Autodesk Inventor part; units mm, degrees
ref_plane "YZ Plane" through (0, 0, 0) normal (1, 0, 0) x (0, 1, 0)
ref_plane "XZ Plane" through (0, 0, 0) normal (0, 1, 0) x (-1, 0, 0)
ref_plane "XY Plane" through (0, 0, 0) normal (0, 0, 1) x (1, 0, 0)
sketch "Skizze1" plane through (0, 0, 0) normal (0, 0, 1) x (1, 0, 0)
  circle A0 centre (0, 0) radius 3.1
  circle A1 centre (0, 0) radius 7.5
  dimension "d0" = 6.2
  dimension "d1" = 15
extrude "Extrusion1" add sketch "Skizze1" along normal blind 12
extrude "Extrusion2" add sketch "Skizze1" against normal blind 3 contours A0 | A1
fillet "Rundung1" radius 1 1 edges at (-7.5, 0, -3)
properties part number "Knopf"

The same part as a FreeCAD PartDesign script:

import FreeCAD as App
import Part
import Sketcher

V = App.Vector


def edges_at(feature, points):
    """Names of the edges that pass closest to the given points."""
    edges = feature.Shape.Edges
    near = lambda p: min(range(len(edges)), key=lambda i: edges[i].distToShape(Part.Vertex(*p))[0])
    return sorted({f"Edge{near(p) + 1}" for p in points})

doc = App.newDocument("Part")
body = doc.addObject("PartDesign::Body", "Body")

sketch1 = doc.addObject("Sketcher::SketchObject", "Sketch")
body.addObject(sketch1)
sketch1.AttachmentSupport = (doc.XY_Plane, [""])
sketch1.MapMode = "FlatFace"
sketch1.addGeometry([
    Part.Circle(V(0, 0, 0), V(0, 0, 1), 7.5),
    Part.Circle(V(0, 0, 0), V(0, 0, 1), 3.1),
], False)
sketch1.addConstraint([
    Sketcher.Constraint("Coincident", 0, 3, -1, 1),
    Sketcher.Constraint("Coincident", 1, 3, -1, 1),
    Sketcher.Constraint("Diameter", 0, 15.0),
    Sketcher.Constraint("Diameter", 1, 6.2),
])
pad1 = doc.addObject("PartDesign::Pad", "Pad")
body.addObject(pad1)
pad1.Profile = sketch1
pad1.Length = 12

sketch2 = doc.addObject("Sketcher::SketchObject", "Sketch001")
body.addObject(sketch2)
sketch2.AttachmentSupport = (doc.XY_Plane, [""])
sketch2.MapMode = "FlatFace"
sketch2.addGeometry(Part.Circle(V(0, 0, 0), V(0, 0, 1), 8), False)
sketch2.addConstraint([
    Sketcher.Constraint("Coincident", 0, 3, -1, 1),
    Sketcher.Constraint("Diameter", 0, 15.0),
])
pad2 = doc.addObject("PartDesign::Pad", "Pad001")
body.addObject(pad2)
pad2.Profile = sketch2
pad2.Length = 3
pad2.Reversed = True
doc.recompute()

fillet = doc.addObject("PartDesign::Fillet", "Fillet")
body.addObject(fillet)
fillet.Base = (pad2, edges_at(pad2, [(-7.5, 0, -3)]))
fillet.Radius = 1

doc.recompute()
